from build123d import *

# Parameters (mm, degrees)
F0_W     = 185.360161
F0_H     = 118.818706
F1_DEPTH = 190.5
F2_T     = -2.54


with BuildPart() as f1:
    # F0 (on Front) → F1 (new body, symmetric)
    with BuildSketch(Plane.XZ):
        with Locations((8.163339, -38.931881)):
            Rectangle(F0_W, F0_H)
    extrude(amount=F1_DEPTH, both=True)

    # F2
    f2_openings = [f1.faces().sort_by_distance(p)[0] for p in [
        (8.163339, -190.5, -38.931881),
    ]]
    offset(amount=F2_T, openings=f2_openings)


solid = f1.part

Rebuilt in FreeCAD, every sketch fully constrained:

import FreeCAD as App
import Part
import Sketcher
Q = App.Units.Quantity


def faces_at(feature, points):
    """Names of the faces that lie closest to the given points."""
    faces = feature.Shape.Faces
    near = lambda p: min(range(len(faces)), key=lambda i: faces[i].distToShape(Part.Vertex(*p))[0])
    return sorted({f"Face{near(p) + 1}" for p in points})

doc = App.newDocument("Part")
body = doc.addObject("PartDesign::Body", "Body")

# Sketch on XZ plane
sketch1 = body.newObject("Sketcher::SketchObject", "Sketch")
sketch1.AttachmentSupport = (doc.getObject("XZ_Plane"), [""])
sketch1.MapMode = "FlatFace"
sketch1.addGeometry(Part.LineSegment(App.Vector(-85, 20, 0), App.Vector(-85, -98, 0)), False)
sketch1.addGeometry(Part.LineSegment(App.Vector(-85, -98, 0), App.Vector(101, -98, 0)), False)
sketch1.addGeometry(Part.LineSegment(App.Vector(101, -98, 0), App.Vector(101, 20, 0)), False)
sketch1.addGeometry(Part.LineSegment(App.Vector(101, 20, 0), App.Vector(-85, 20, 0)), False)
sketch1.addConstraint(Sketcher.Constraint("Coincident", 0, 2, 1, 1))
sketch1.addConstraint(Sketcher.Constraint("Coincident", 1, 2, 2, 1))
sketch1.addConstraint(Sketcher.Constraint("Coincident", 2, 2, 3, 1))
sketch1.addConstraint(Sketcher.Constraint("Coincident", 3, 2, 0, 1))
sketch1.addConstraint(Sketcher.Constraint("Vertical", 0))
sketch1.addConstraint(Sketcher.Constraint("Horizontal", 1))
sketch1.addConstraint(Sketcher.Constraint("Vertical", 2))
sketch1.addConstraint(Sketcher.Constraint("Horizontal", 3))
sketch1.addConstraint(Sketcher.Constraint("DistanceX", 1, 1, 1, 2, Q("185.360161 mm")))
sketch1.addConstraint(Sketcher.Constraint("DistanceY", 0, 2, 0, 1, Q("118.818706 mm")))
sketch1.addConstraint(Sketcher.Constraint("DistanceX", 0, 2, -1, 1, Q("84.516741 mm")))
sketch1.addConstraint(Sketcher.Constraint("DistanceY", -1, 1, 2, 2, Q("20.477472 mm")))
pad1 = body.newObject("PartDesign::Pad", "Pad")
pad1.Profile = sketch1
pad1.Length = Q("15 in")
pad1.Midplane = True
doc.recompute()

thickness = body.newObject("PartDesign::Thickness", "Thickness")
thickness.Base = (pad1, faces_at(pad1, [(8.163, -190.5, -38.932)]))
thickness.Value = Q("0.1 in")
thickness.Reversed = True
thickness.Join = "Arc"

doc.recompute()
